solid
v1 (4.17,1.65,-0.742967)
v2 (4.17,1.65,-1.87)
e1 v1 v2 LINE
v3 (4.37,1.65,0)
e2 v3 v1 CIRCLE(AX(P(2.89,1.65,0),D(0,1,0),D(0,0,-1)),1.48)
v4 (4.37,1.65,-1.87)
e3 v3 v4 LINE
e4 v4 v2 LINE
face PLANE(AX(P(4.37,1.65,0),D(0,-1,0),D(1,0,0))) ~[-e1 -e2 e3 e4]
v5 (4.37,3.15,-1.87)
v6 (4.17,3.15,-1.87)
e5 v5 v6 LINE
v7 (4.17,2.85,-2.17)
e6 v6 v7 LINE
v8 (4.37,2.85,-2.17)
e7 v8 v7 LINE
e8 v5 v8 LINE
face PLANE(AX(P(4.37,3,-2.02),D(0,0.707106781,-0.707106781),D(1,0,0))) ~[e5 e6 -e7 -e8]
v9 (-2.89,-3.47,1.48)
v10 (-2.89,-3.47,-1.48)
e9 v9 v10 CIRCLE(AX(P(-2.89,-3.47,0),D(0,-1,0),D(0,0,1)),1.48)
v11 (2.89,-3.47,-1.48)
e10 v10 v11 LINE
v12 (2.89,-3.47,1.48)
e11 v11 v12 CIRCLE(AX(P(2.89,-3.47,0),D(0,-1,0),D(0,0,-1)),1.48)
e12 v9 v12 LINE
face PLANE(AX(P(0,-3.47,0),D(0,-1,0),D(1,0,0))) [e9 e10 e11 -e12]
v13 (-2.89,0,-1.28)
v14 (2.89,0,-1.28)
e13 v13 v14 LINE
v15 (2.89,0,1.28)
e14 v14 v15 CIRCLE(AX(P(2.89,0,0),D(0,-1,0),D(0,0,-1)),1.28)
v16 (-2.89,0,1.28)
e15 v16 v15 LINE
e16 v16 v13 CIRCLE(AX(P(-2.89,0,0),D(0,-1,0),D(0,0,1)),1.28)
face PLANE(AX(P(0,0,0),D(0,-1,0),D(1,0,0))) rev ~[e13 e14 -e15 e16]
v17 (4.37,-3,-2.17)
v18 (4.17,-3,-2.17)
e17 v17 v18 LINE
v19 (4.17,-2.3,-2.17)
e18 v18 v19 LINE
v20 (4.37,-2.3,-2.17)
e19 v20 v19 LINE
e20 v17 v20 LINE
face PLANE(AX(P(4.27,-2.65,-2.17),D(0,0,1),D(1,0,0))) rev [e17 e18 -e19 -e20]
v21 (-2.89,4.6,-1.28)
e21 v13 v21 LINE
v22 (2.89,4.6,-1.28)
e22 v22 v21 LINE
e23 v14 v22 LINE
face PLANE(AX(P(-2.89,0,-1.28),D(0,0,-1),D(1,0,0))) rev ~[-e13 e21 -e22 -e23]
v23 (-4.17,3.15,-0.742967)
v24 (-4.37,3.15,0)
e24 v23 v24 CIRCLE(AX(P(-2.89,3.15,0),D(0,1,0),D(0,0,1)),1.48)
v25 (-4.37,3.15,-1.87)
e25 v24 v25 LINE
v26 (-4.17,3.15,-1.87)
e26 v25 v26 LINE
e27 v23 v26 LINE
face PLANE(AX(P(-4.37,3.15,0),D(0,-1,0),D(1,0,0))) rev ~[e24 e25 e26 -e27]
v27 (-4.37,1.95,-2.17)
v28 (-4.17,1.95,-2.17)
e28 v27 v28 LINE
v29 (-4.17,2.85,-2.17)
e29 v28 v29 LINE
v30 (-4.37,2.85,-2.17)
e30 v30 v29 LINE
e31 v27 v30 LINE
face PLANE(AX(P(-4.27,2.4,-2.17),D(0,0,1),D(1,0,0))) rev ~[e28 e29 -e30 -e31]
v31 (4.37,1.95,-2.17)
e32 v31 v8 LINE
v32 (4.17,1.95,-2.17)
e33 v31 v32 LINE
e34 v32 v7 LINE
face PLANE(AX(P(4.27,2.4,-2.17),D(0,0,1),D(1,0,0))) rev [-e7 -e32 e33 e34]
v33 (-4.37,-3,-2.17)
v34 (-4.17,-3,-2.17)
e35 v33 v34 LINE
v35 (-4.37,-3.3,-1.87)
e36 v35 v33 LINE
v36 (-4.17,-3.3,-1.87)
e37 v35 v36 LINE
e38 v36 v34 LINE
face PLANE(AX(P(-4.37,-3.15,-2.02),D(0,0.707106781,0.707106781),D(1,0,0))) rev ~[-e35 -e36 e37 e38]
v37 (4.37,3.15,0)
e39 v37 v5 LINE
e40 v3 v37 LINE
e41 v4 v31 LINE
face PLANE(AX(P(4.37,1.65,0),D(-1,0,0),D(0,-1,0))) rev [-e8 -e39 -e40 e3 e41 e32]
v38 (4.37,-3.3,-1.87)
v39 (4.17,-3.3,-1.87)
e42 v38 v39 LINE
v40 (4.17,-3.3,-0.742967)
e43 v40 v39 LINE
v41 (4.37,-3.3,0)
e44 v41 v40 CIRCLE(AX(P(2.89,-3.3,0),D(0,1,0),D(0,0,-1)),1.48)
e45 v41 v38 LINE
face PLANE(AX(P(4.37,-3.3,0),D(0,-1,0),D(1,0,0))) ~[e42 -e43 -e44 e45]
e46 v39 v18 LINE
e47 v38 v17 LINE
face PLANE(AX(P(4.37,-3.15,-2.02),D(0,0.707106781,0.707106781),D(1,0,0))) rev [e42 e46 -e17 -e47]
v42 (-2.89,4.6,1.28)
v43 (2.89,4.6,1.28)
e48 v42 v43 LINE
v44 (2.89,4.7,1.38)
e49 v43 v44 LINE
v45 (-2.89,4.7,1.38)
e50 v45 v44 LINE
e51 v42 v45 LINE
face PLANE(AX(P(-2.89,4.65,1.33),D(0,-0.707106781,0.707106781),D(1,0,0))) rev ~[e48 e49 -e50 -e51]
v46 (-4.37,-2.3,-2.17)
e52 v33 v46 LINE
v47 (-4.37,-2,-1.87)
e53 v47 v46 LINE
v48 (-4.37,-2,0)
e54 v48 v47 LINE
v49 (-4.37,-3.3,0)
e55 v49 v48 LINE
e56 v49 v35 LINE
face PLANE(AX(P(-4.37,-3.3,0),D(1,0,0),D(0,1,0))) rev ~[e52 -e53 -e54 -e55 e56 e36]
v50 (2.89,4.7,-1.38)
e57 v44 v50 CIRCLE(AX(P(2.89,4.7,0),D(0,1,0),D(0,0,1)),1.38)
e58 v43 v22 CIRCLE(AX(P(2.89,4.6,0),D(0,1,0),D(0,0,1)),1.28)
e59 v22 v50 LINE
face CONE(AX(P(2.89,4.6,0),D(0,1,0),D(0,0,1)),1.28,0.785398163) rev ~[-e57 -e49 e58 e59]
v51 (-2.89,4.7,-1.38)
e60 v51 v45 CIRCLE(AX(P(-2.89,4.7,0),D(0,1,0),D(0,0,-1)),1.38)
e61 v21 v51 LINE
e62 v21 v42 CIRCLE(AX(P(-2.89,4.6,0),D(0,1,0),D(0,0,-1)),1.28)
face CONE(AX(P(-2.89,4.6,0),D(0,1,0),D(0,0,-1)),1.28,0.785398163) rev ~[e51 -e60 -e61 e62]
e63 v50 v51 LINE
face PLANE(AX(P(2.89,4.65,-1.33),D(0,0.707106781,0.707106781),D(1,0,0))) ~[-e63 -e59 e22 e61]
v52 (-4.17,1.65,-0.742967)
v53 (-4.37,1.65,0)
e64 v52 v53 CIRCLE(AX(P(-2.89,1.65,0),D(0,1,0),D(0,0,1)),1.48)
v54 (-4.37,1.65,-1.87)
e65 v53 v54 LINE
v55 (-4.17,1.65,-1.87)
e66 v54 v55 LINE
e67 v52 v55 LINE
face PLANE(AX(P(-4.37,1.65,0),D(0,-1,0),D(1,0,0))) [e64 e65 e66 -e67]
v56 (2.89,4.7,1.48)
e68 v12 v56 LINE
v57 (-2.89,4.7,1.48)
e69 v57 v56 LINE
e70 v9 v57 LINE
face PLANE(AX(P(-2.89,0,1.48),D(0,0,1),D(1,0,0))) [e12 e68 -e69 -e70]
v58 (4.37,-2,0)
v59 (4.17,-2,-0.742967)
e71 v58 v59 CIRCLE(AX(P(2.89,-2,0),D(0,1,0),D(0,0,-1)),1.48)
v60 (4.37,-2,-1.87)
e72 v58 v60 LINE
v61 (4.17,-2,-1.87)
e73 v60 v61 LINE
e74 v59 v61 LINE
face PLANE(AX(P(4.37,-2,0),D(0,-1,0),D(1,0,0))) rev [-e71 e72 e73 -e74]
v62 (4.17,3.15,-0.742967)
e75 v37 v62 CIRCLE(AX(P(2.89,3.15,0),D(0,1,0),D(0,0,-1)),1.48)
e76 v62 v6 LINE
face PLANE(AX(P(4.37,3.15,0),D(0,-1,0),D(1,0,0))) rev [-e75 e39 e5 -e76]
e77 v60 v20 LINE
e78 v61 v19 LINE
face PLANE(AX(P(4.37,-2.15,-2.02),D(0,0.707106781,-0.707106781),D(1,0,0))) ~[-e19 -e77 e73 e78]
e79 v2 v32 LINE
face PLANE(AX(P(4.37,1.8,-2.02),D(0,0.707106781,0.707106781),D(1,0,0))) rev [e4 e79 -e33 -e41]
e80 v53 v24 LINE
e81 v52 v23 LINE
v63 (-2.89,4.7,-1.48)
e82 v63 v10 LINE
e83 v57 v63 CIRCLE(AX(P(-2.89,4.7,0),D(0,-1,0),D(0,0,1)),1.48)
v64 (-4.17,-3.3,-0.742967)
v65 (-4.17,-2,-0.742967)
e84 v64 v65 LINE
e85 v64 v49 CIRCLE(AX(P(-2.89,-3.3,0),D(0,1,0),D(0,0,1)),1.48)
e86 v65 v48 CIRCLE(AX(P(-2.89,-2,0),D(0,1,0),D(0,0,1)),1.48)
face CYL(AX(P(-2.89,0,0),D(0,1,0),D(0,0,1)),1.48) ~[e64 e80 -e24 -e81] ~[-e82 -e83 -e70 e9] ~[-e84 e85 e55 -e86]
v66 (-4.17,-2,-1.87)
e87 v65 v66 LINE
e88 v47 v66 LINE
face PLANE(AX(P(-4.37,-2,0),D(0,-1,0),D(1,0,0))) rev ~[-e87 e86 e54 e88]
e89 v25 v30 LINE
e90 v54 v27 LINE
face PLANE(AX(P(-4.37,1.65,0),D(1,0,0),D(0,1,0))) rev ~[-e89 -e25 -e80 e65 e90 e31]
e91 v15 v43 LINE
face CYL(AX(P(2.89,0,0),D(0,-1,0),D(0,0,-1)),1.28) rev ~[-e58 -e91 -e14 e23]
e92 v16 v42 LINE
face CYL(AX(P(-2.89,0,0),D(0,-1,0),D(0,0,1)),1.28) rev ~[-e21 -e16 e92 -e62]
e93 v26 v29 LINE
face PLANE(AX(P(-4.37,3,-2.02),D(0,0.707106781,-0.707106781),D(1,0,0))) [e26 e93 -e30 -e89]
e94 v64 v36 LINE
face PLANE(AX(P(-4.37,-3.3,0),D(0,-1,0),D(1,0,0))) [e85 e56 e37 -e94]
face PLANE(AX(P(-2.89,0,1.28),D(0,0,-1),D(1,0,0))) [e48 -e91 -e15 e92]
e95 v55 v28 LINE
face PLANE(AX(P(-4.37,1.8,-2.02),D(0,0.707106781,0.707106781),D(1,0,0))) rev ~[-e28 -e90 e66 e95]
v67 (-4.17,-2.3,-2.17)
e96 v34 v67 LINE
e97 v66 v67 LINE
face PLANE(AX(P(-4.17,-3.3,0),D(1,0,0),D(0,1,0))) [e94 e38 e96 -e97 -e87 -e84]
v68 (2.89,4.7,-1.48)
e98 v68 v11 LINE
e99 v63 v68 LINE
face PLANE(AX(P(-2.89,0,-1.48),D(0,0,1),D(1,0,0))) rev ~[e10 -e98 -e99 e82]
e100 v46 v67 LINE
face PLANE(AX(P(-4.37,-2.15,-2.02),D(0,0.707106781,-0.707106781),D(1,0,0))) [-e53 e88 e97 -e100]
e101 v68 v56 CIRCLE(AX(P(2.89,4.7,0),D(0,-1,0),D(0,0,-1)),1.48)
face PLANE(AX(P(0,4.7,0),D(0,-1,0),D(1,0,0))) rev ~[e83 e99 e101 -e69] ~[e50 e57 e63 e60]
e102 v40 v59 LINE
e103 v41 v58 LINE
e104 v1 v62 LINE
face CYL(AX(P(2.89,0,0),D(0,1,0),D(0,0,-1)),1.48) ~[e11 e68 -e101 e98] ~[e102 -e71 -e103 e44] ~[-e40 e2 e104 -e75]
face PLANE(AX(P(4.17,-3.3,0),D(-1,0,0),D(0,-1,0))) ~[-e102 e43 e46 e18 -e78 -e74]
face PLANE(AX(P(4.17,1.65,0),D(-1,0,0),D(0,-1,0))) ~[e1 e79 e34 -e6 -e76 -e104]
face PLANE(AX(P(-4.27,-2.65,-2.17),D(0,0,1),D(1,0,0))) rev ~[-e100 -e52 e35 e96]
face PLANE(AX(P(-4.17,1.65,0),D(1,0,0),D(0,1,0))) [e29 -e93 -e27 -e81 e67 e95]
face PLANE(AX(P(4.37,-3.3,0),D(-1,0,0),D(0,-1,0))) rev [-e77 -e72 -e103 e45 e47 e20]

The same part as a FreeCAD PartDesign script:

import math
import FreeCAD as App
import Part
import Sketcher

V = App.Vector
Q = App.Units.Quantity


def edges_at(feature, points):
    """Names of the edges that pass closest to the given points."""
    edges = feature.Shape.Edges
    near = lambda p: min(range(len(edges)), key=lambda i: edges[i].distToShape(Part.Vertex(*p))[0])
    return sorted({f"Edge{near(p) + 1}" for p in points})


def add_polygon(sketch, points):
    """Adds a closed chain of lines whose ends are joined by coincident constraints."""
    first, n = sketch.GeometryCount, len(points)
    for a, b in zip(points, points[1:] + points[:1]):
        sketch.addGeometry(Part.LineSegment(App.Vector(*a, 0), App.Vector(*b, 0)), False)
    for i in range(n):
        sketch.addConstraint(Sketcher.Constraint("Coincident", first + i, 2, first + (i + 1) % n, 1))

doc = App.newDocument("Part")
params = doc.addObject("Spreadsheet::Sheet", "Params")
for row, (alias, value) in enumerate([
    ("sketch1_radius", "1.48 mm"),
    ("sketch1_radius2", "1.28 mm"),
    ("sketch1_width", "5.78 mm"),
    ("pad1_length", "4.7 mm"),
    ("chamfer_size", "0.1 mm"),
    ("sketch2_radius", "1.48 mm"),
    ("sketch2_width", "5.78 mm"),
    ("pad2_length", "3.47 mm"),
    ("sketch3_width", "0.2 mm"),
    ("sketch3_height", "1.5 mm"),
    ("sketch3_height2", "1.3 mm"),
    ("pad3_length", "2.17 mm"),
    ("chamfer2_size", "0.3 mm"),
], start=1):
    params.set(f"A{row}", alias)
    params.set(f"B{row}", "=" + value)
    params.setAlias(f"B{row}", alias)

body = doc.addObject("PartDesign::Body", "Body")

sketch1 = body.newObject("Sketcher::SketchObject", "Sketch")
sketch1.AttachmentSupport = (doc.getObject("XZ_Plane"), [""])
sketch1.MapMode = "FlatFace"
sketch1.addGeometry([
    Part.ArcOfCircle(Part.Circle(V(-2.9, 0, 0), V(0, 0, 1), 1.5), math.radians(90), math.radians(270)),
    Part.LineSegment(V(-2.9, -1.5, 0), V(2.9, -1.5, 0)),
    Part.ArcOfCircle(Part.Circle(V(2.9, 0, 0), V(0, 0, 1), 1.5), math.radians(-90), math.radians(90)),
    Part.LineSegment(V(2.9, 1.5, 0), V(-2.9, 1.5, 0)),
    Part.ArcOfCircle(Part.Circle(V(-2.9, 0, 0), V(0, 0, 1), 1.3), math.radians(90), math.radians(270)),
    Part.LineSegment(V(-2.9, 1.3, 0), V(2.9, 1.3, 0)),
    Part.ArcOfCircle(Part.Circle(V(2.9, 0, 0), V(0, 0, 1), 1.3), math.radians(-90), math.radians(90)),
    Part.LineSegment(V(2.9, -1.3, 0), V(-2.9, -1.3, 0)),
], False)
sketch1.addConstraint([
    Sketcher.Constraint("Tangent", 0, 2, 1, 1),
    Sketcher.Constraint("Tangent", 1, 2, 2, 1),
    Sketcher.Constraint("Tangent", 2, 2, 3, 1),
    Sketcher.Constraint("Tangent", 3, 2, 0, 1),
    Sketcher.Constraint("Tangent", 4, 1, 5, 1),
    Sketcher.Constraint("Tangent", 5, 2, 6, 2),
    Sketcher.Constraint("Tangent", 6, 1, 7, 1),
    Sketcher.Constraint("Tangent", 7, 2, 4, 2),
    Sketcher.Constraint("Horizontal", 1),
    Sketcher.Constraint("Horizontal", 3),
    Sketcher.Constraint("Horizontal", 5),
    Sketcher.Constraint("Horizontal", 7),
    Sketcher.Constraint("Coincident", 4, 3, 0, 3),
    Sketcher.Constraint("Symmetric", 0, 3, 2, 3, -1, 1),
    Sketcher.Constraint("Vertical", 6, 3, 1, 2),
    Sketcher.Constraint("Radius", 0, Q("1.48 mm")),
    Sketcher.Constraint("Radius", 4, Q("1.28 mm")),
    Sketcher.Constraint("DistanceX", 1, 1, 1, 2, Q("5.78 mm")),
])
sketch1.setExpression("Constraints[15]", "Params.sketch1_radius")
sketch1.setExpression("Constraints[16]", "Params.sketch1_radius2")
sketch1.setExpression("Constraints[17]", "Params.sketch1_width")
pad1 = body.newObject("PartDesign::Pad", "Pad")
pad1.Profile = sketch1
pad1.setExpression("Length", "Params.pad1_length")
pad1.Reversed = True
doc.recompute()

chamfer = body.newObject("PartDesign::Chamfer", "Chamfer")
chamfer.Base = (pad1, edges_at(pad1, [(0, 4.7, 1.28)]))
chamfer.setExpression("Size", "Params.chamfer_size")

sketch2 = body.newObject("Sketcher::SketchObject", "Sketch001")
sketch2.AttachmentSupport = (doc.getObject("XZ_Plane"), [""])
sketch2.MapMode = "FlatFace"
sketch2.addGeometry([
    Part.ArcOfCircle(Part.Circle(V(-2.9, 0, 0), V(0, 0, 1), 1.5), math.radians(90), math.radians(270)),
    Part.LineSegment(V(-2.9, -1.5, 0), V(2.9, -1.5, 0)),
    Part.ArcOfCircle(Part.Circle(V(2.9, 0, 0), V(0, 0, 1), 1.5), math.radians(-90), math.radians(90)),
    Part.LineSegment(V(2.9, 1.5, 0), V(-2.9, 1.5, 0)),
], False)
sketch2.addConstraint([
    Sketcher.Constraint("Tangent", 0, 2, 1, 1),
    Sketcher.Constraint("Tangent", 1, 2, 2, 1),
    Sketcher.Constraint("Tangent", 2, 2, 3, 1),
    Sketcher.Constraint("Tangent", 3, 2, 0, 1),
    Sketcher.Constraint("Horizontal", 1),
    Sketcher.Constraint("Horizontal", 3),
    Sketcher.Constraint("Symmetric", 0, 3, 2, 3, -1, 1),
    Sketcher.Constraint("Radius", 0, Q("1.48 mm")),
    Sketcher.Constraint("DistanceX", 1, 1, 1, 2, Q("5.78 mm")),
])
sketch2.setExpression("Constraints[7]", "Params.sketch2_radius")
sketch2.setExpression("Constraints[8]", "Params.sketch2_width")
pad2 = body.newObject("PartDesign::Pad", "Pad001")
pad2.Profile = sketch2
pad2.setExpression("Length", "Params.pad2_length")

sketch3 = body.newObject("Sketcher::SketchObject", "Sketch002")
sketch3.AttachmentSupport = (doc.getObject("XY_Plane"), [""])
sketch3.MapMode = "FlatFace"
add_polygon(sketch3, [(-4.37, 3.15), (-4.37, 1.65), (-4.17, 1.65), (-4.17, 3.15)])
add_polygon(sketch3, [(-4.37, -2), (-4.37, -3.3), (-4.17, -3.3), (-4.17, -2)])
sketch3.addConstraint([
    Sketcher.Constraint("Vertical", 0),
    Sketcher.Constraint("Horizontal", 1),
    Sketcher.Constraint("Vertical", 2),
    Sketcher.Constraint("Horizontal", 3),
    Sketcher.Constraint("Vertical", 4),
    Sketcher.Constraint("Horizontal", 5),
    Sketcher.Constraint("Vertical", 6),
    Sketcher.Constraint("Horizontal", 7),
    Sketcher.Constraint("Vertical", 3, 2, 4, 2),
    Sketcher.Constraint("Vertical", 2, 2, 5, 2),
    Sketcher.Constraint("DistanceX", 1, 1, 1, 2, Q("0.2 mm")),
    Sketcher.Constraint("DistanceY", 0, 2, 0, 1, Q("1.5 mm")),
    Sketcher.Constraint("DistanceY", 4, 2, 4, 1, Q("1.3 mm")),
    Sketcher.Constraint("DistanceY", 6, 2, -1, 1, Q("2 mm")),
    Sketcher.Constraint("DistanceX", 0, 2, -1, 1, Q("4.37 mm")),
    Sketcher.Constraint("DistanceY", -1, 1, 0, 2, Q("1.65 mm")),
])
sketch3.setExpression("Constraints[18]", "Params.sketch3_width")
sketch3.setExpression("Constraints[19]", "Params.sketch3_height")
sketch3.setExpression("Constraints[20]", "Params.sketch3_height2")
pad3 = body.newObject("PartDesign::Pad", "Pad002")
pad3.Profile = sketch3
pad3.setExpression("Length", "Params.pad3_length")
pad3.Reversed = True
doc.recompute()

mirrored = body.newObject("PartDesign::Mirrored", "Mirrored")
mirrored.Originals = [pad3]
mirrored.MirrorPlane = (doc.getObject("YZ_Plane"), [""])
body.Tip = mirrored
doc.recompute()

chamfer2 = body.newObject("PartDesign::Chamfer", "Chamfer001")
chamfer2.Base = (mirrored, edges_at(mirrored, [
    (4.27, -3.3, -2.17),
    (4.27, -2, -2.17),
    (4.27, 1.65, -2.17),
    (4.27, 3.15, -2.17),
    (-4.27, -3.3, -2.17),
    (-4.27, -2, -2.17),
    (-4.27, 1.65, -2.17),
    (-4.27, 3.15, -2.17),
]))
chamfer2.setExpression("Size", "Params.chamfer2_size")

doc.recompute()
